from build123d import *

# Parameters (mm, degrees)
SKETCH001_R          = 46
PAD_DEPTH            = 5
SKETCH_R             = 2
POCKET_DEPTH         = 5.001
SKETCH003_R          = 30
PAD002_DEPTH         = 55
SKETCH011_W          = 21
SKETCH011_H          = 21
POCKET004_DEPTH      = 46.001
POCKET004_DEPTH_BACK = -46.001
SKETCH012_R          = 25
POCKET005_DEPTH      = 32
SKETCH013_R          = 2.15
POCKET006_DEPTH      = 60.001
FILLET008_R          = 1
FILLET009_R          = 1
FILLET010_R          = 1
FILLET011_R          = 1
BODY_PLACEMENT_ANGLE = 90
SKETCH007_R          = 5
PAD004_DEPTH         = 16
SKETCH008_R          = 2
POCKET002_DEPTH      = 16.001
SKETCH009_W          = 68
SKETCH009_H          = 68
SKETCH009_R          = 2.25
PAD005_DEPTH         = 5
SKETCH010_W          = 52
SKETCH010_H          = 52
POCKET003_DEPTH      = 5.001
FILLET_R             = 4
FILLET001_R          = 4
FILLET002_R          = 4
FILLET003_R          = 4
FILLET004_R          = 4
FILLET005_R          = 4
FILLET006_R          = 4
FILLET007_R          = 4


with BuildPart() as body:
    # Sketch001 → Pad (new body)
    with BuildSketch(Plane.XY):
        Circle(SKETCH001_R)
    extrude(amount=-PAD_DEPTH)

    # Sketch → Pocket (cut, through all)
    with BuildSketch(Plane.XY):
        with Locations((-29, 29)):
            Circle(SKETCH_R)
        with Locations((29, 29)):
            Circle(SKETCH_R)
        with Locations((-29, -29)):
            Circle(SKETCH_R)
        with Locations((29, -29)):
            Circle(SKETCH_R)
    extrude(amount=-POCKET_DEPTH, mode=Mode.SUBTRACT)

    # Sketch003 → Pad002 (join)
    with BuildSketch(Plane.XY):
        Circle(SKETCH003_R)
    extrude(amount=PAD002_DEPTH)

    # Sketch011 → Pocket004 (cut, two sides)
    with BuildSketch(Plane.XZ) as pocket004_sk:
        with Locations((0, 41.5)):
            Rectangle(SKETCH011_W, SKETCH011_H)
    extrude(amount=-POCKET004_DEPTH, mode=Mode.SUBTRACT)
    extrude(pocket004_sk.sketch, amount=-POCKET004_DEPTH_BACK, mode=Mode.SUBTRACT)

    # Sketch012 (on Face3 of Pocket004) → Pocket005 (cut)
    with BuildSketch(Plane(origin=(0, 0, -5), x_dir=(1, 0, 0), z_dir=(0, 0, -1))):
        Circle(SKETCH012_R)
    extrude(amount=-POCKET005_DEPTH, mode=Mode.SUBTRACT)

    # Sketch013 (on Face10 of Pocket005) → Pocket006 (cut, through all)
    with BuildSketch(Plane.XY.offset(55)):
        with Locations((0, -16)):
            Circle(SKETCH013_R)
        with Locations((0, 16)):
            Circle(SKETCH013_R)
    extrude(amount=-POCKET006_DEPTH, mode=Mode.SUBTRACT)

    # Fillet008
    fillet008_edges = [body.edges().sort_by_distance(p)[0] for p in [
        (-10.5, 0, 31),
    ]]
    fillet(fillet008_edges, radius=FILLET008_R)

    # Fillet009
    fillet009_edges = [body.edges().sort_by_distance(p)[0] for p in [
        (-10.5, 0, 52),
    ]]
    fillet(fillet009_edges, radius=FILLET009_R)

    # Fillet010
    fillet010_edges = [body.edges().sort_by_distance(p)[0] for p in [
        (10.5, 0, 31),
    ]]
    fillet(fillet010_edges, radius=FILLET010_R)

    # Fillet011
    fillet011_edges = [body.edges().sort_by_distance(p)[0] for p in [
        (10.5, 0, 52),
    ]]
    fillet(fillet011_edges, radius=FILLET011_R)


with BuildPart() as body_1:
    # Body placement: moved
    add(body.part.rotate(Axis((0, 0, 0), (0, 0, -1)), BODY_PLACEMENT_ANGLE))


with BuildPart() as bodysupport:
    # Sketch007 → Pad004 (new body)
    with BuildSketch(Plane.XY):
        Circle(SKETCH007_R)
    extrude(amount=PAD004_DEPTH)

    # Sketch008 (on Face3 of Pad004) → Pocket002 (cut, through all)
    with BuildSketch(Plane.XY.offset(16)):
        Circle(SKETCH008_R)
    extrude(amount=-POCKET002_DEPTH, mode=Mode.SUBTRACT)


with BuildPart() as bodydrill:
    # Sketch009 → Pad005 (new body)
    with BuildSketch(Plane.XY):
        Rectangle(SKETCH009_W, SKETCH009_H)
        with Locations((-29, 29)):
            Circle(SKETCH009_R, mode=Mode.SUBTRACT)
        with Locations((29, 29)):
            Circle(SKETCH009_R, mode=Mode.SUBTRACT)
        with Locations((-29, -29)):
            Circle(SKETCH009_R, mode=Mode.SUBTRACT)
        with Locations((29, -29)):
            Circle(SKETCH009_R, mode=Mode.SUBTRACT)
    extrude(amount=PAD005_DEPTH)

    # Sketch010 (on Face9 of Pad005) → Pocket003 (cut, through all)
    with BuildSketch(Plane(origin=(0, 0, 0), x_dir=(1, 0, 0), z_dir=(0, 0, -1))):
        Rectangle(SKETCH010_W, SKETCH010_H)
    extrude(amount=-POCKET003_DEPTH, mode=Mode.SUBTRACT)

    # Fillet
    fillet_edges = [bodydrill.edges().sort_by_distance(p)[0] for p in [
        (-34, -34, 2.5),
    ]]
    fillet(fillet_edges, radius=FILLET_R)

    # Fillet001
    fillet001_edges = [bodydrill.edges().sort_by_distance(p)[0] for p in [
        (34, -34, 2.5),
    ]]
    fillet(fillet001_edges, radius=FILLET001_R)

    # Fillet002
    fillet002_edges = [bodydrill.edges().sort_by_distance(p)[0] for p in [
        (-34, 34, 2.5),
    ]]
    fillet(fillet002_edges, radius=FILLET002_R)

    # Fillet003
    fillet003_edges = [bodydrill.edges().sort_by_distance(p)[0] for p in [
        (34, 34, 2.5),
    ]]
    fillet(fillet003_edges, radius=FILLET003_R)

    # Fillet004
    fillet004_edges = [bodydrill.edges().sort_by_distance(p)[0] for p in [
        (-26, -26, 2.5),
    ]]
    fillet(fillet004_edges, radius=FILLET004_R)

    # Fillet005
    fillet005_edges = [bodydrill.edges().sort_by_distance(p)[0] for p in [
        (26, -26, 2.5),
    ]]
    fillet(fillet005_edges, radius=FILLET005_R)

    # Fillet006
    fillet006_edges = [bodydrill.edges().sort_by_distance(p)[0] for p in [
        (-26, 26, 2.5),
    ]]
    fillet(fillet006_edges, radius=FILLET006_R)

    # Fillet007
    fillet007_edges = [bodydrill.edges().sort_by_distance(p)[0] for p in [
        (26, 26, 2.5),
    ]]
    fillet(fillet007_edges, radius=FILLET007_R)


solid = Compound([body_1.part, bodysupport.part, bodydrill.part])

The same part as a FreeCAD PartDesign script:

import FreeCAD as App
import Part
import Sketcher
from FreeCAD import Vector
Q = App.Units.Quantity


def edges_at(feature, points):
    """Names of the edges that pass closest to the given points."""
    edges = feature.Shape.Edges
    near = lambda p: min(range(len(edges)), key=lambda i: edges[i].distToShape(Part.Vertex(*p))[0])
    return sorted({f"Edge{near(p) + 1}" for p in points})


def add_polygon(sketch, points):
    """Adds a closed chain of lines whose ends are joined by coincident constraints."""
    first, n = sketch.GeometryCount, len(points)
    for a, b in zip(points, points[1:] + points[:1]):
        sketch.addGeometry(Part.LineSegment(App.Vector(*a, 0), App.Vector(*b, 0)), False)
    for i in range(n):
        sketch.addConstraint(Sketcher.Constraint("Coincident", first + i, 2, first + (i + 1) % n, 1))

doc = App.newDocument("Part")
params = doc.addObject("Spreadsheet::Sheet", "Params")
for row, (alias, value) in enumerate([
    ("sketch1_diameter", "92 mm"),
    ("pad1_length", "5 mm"),
    ("sketch2_diameter", "4 mm"),
    ("sketch3_diameter", "60 mm"),
    ("pad2_length", "55 mm"),
    ("sketch4_width", "21 mm"),
    ("sketch5_diameter", "50 mm"),
    ("pocket3_length", "32 mm"),
    ("sketch6_diameter", "4.3 mm"),
    ("fillet_radius", "1 mm"),
    ("fillet2_radius", "1 mm"),
    ("fillet3_radius", "1 mm"),
    ("fillet4_radius", "1 mm"),
    ("sketch7_diameter", "10 mm"),
    ("pad3_length", "16 mm"),
    ("sketch8_diameter", "4 mm"),
    ("sketch9_diameter", "4.5 mm"),
    ("sketch9_width", "68 mm"),
    ("pad4_length", "5 mm"),
    ("sketch10_width", "52 mm"),
    ("fillet5_radius", "4 mm"),
    ("fillet6_radius", "4 mm"),
    ("fillet7_radius", "4 mm"),
    ("fillet8_radius", "4 mm"),
    ("fillet9_radius", "4 mm"),
    ("fillet10_radius", "4 mm"),
    ("fillet11_radius", "4 mm"),
    ("fillet12_radius", "4 mm"),
], start=1):
    params.set(f"A{row}", alias)
    params.set(f"B{row}", "=" + value)
    params.setAlias(f"B{row}", alias)

body = doc.addObject("PartDesign::Body", "Body")

# Sketch on XY plane
sketch1 = doc.addObject("Sketcher::SketchObject", "Sketch")
body.addObject(sketch1)
sketch1.AttachmentSupport = (doc.XY_Plane, [""])
sketch1.MapMode = "FlatFace"
sketch1.addGeometry(Part.Circle(Vector(0, 0, 0), Vector(0, 0, 1), 46), False)
sketch1.addConstraint([
    Sketcher.Constraint("Coincident", 0, 3, -1, 1),
    Sketcher.Constraint("Diameter", 0, Q("92 mm")),
])
sketch1.setExpression("Constraints[1]", "Params.sketch1_diameter")
pad1 = doc.addObject("PartDesign::Pad", "Pad")
body.addObject(pad1)
pad1.Profile = sketch1
pad1.setExpression("Length", "Params.pad1_length")
pad1.Reversed = True

# Sketch on XY plane
sketch2 = doc.addObject("Sketcher::SketchObject", "Sketch001")
body.addObject(sketch2)
sketch2.AttachmentSupport = (doc.XY_Plane, [""])
sketch2.MapMode = "FlatFace"
sketch2.addGeometry([
    Part.Circle(Vector(-29, 29, 0), Vector(0, 0, 1), 2),
    Part.Circle(Vector(29, 29, 0), Vector(0, 0, 1), 2),
    Part.Circle(Vector(-29, -29, 0), Vector(0, 0, 1), 2),
    Part.Circle(Vector(29, -29, 0), Vector(0, 0, 1), 2),
], False)
sketch2.addConstraint([
    Sketcher.Constraint("Equal", 0, 1),
    Sketcher.Constraint("Equal", 1, 2),
    Sketcher.Constraint("Equal", 2, 3),
    Sketcher.Constraint("Symmetric", 1, 3, 2, 3, -1, 1),
    Sketcher.Constraint("Symmetric", 0, 3, 3, 3, -1, 1),
    Sketcher.Constraint("Symmetric", 0, 3, 1, 3, -2),
    Sketcher.Constraint("Diameter", 0, Q("4 mm")),
    Sketcher.Constraint("DistanceX", 0, 3, -1, 1, Q("29 mm")),
    Sketcher.Constraint("DistanceY", -1, 1, 0, 3, Q("29 mm")),
])
sketch2.setExpression("Constraints[6]", "Params.sketch2_diameter")
pocket1 = doc.addObject("PartDesign::Pocket", "Pocket")
body.addObject(pocket1)
pocket1.Profile = sketch2
pocket1.Type = "ThroughAll"

# Sketch on XY plane
sketch3 = doc.addObject("Sketcher::SketchObject", "Sketch002")
body.addObject(sketch3)
sketch3.AttachmentSupport = (doc.XY_Plane, [""])
sketch3.MapMode = "FlatFace"
sketch3.addGeometry(Part.Circle(Vector(0, 0, 0), Vector(0, 0, 1), 30), False)
sketch3.addConstraint([
    Sketcher.Constraint("Coincident", 0, 3, -1, 1),
    Sketcher.Constraint("Diameter", 0, Q("60 mm")),
])
sketch3.setExpression("Constraints[1]", "Params.sketch3_diameter")
pad2 = doc.addObject("PartDesign::Pad", "Pad001")
body.addObject(pad2)
pad2.Profile = sketch3
pad2.setExpression("Length", "Params.pad2_length")

# Sketch on XZ plane
sketch4 = doc.addObject("Sketcher::SketchObject", "Sketch003")
body.addObject(sketch4)
sketch4.AttachmentSupport = (doc.XZ_Plane, [""])
sketch4.MapMode = "FlatFace"
add_polygon(sketch4, [(-10, 52), (-10, 31), (10, 31), (10, 52)])  # lines 0-3
sketch4.addConstraint([
    Sketcher.Constraint("Vertical", 0),
    Sketcher.Constraint("Horizontal", 1),
    Sketcher.Constraint("Vertical", 2),
    Sketcher.Constraint("Horizontal", 3),
    Sketcher.Constraint("Equal", 3, 0),
    Sketcher.Constraint("DistanceX", 1, 1, 1, 2, Q("21 mm")),
    Sketcher.Constraint("DistanceY", -1, 1, 0, 2, Q("31 mm")),
    Sketcher.Constraint("DistanceX", 0, 2, -1, 1, Q("10.5 mm")),
])
sketch4.setExpression("Constraints[9]", "Params.sketch4_width")
pocket2 = doc.addObject("PartDesign::Pocket", "Pocket001")
body.addObject(pocket2)
pocket2.Profile = sketch4
pocket2.Type = "ThroughAll"
pocket2.Midplane = True

# Sketch on XY plane
sketch5 = doc.addObject("Sketcher::SketchObject", "Sketch004")
body.addObject(sketch5)
sketch5.AttachmentSupport = (doc.XY_Plane, [""])
sketch5.MapMode = "FlatFace"
sketch5.AttachmentOffset = App.Placement(Vector(0, 0, -5), App.Rotation())
sketch5.addGeometry(Part.Circle(Vector(0, 0, 0), Vector(0, 0, 1), 25), False)
sketch5.addConstraint([
    Sketcher.Constraint("Coincident", 0, 3, -1, 1),
    Sketcher.Constraint("Diameter", 0, Q("50 mm")),
])
sketch5.setExpression("Constraints[1]", "Params.sketch5_diameter")
pocket3 = doc.addObject("PartDesign::Pocket", "Pocket002")
body.addObject(pocket3)
pocket3.Profile = sketch5
pocket3.setExpression("Length", "Params.pocket3_length")
pocket3.Reversed = True

# Sketch on XY plane
sketch6 = doc.addObject("Sketcher::SketchObject", "Sketch005")
body.addObject(sketch6)
sketch6.AttachmentSupport = (doc.XY_Plane, [""])
sketch6.MapMode = "FlatFace"
sketch6.AttachmentOffset = App.Placement(Vector(0, 0, 55), App.Rotation())
sketch6.addGeometry([
    Part.Circle(Vector(0, -16, 0), Vector(0, 0, 1), 2.1),
    Part.Circle(Vector(0, 16, 0), Vector(0, 0, 1), 2.1),
], False)
sketch6.addConstraint([
    Sketcher.Constraint("Equal", 0, 1),
    Sketcher.Constraint("Symmetric", 0, 3, 1, 3, -1, 1),
    Sketcher.Constraint("PointOnObject", 0, 3, -2),
    Sketcher.Constraint("Diameter", 0, Q("4.3 mm")),
    Sketcher.Constraint("DistanceY", 0, 3, -1, 1, Q("16 mm")),
])
sketch6.setExpression("Constraints[3]", "Params.sketch6_diameter")
pocket4 = doc.addObject("PartDesign::Pocket", "Pocket003")
body.addObject(pocket4)
pocket4.Profile = sketch6
pocket4.Type = "ThroughAll"
doc.recompute()

fillet = doc.addObject("PartDesign::Fillet", "Fillet")
body.addObject(fillet)
fillet.Base = (pocket4, edges_at(pocket4, [(-10.5, 0, 31)]))
fillet.setExpression("Radius", "Params.fillet_radius")
doc.recompute()

fillet2 = doc.addObject("PartDesign::Fillet", "Fillet001")
body.addObject(fillet2)
fillet2.Base = (fillet, edges_at(fillet, [(-10.5, 0, 52)]))
fillet2.setExpression("Radius", "Params.fillet2_radius")
doc.recompute()

fillet3 = doc.addObject("PartDesign::Fillet", "Fillet002")
body.addObject(fillet3)
fillet3.Base = (fillet2, edges_at(fillet2, [(10.5, 0, 31)]))
fillet3.setExpression("Radius", "Params.fillet3_radius")
doc.recompute()

fillet4 = doc.addObject("PartDesign::Fillet", "Fillet003")
body.addObject(fillet4)
fillet4.Base = (fillet3, edges_at(fillet3, [(10.5, 0, 52)]))
fillet4.setExpression("Radius", "Params.fillet4_radius")
body2 = doc.addObject("PartDesign::Body", "Body001")
doc.recompute()

body.Placement = App.Placement(Vector(0, 0, 0), App.Rotation(Vector(0, 0, -1), 90))
boolean = doc.addObject("PartDesign::Boolean", "Boolean")
body2.addObject(boolean)
boolean.Type = "Fuse"
boolean.addObjects([body])
body3 = doc.addObject("PartDesign::Body", "Body002")

# Sketch on XY plane
sketch7 = doc.addObject("Sketcher::SketchObject", "Sketch006")
body3.addObject(sketch7)
sketch7.AttachmentSupport = (doc.getObject("XY_Plane002"), [""])
sketch7.MapMode = "FlatFace"
sketch7.addGeometry(Part.Circle(Vector(0, 0, 0), Vector(0, 0, 1), 5), False)
sketch7.addConstraint([
    Sketcher.Constraint("Coincident", 0, 3, -1, 1),
    Sketcher.Constraint("Diameter", 0, Q("10 mm")),
])
sketch7.setExpression("Constraints[1]", "Params.sketch7_diameter")
pad3 = doc.addObject("PartDesign::Pad", "Pad002")
body3.addObject(pad3)
pad3.Profile = sketch7
pad3.setExpression("Length", "Params.pad3_length")

# Sketch on XY plane
sketch8 = doc.addObject("Sketcher::SketchObject", "Sketch007")
body3.addObject(sketch8)
sketch8.AttachmentSupport = (doc.getObject("XY_Plane002"), [""])
sketch8.MapMode = "FlatFace"
sketch8.AttachmentOffset = App.Placement(Vector(0, 0, 16), App.Rotation())
sketch8.addGeometry(Part.Circle(Vector(0, 0, 0), Vector(0, 0, 1), 2), False)
sketch8.addConstraint([
    Sketcher.Constraint("Coincident", 0, 3, -1, 1),
    Sketcher.Constraint("Diameter", 0, Q("4 mm")),
])
sketch8.setExpression("Constraints[1]", "Params.sketch8_diameter")
pocket5 = doc.addObject("PartDesign::Pocket", "Pocket004")
body3.addObject(pocket5)
pocket5.Profile = sketch8
pocket5.Type = "ThroughAll"
body4 = doc.addObject("PartDesign::Body", "Body003")

# Sketch on XY plane
sketch9 = doc.addObject("Sketcher::SketchObject", "Sketch008")
body4.addObject(sketch9)
sketch9.AttachmentSupport = (doc.getObject("XY_Plane003"), [""])
sketch9.MapMode = "FlatFace"
add_polygon(sketch9, [(-34, 34), (-34, -34), (34, -34), (34, 34)])  # lines 0-3
sketch9.addGeometry(Part.Circle(Vector(-29, -29, 0), Vector(0, 0, 1), 2.2), False)  # 4
sketch9.addGeometry(Part.Circle(Vector(29, -29, 0), Vector(0, 0, 1), 2.2), False)  # 5
sketch9.addGeometry(Part.Circle(Vector(-29, 29, 0), Vector(0, 0, 1), 2.2), False)  # 6
sketch9.addGeometry(Part.Circle(Vector(29, 29, 0), Vector(0, 0, 1), 2.2), False)  # 7
sketch9.addConstraint([
    Sketcher.Constraint("Vertical", 0),
    Sketcher.Constraint("Horizontal", 1),
    Sketcher.Constraint("Vertical", 2),
    Sketcher.Constraint("Horizontal", 3),
    Sketcher.Constraint("Equal", 4, 5),
    Sketcher.Constraint("Equal", 5, 6),
    Sketcher.Constraint("Equal", 6, 7),
    Sketcher.Constraint("Symmetric", 5, 3, 6, 3, -1, 1),
    Sketcher.Constraint("Symmetric", 4, 3, 7, 3, -1, 1),
    Sketcher.Constraint("Symmetric", 0, 2, 2, 2, -1, 1),
    Sketcher.Constraint("Symmetric", 4, 3, 5, 3, -2),
    Sketcher.Constraint("Equal", 3, 0),
    Sketcher.Constraint("Diameter", 4, Q("4.5 mm")),
    Sketcher.Constraint("DistanceX", 1, 1, 1, 2, Q("68 mm")),
    Sketcher.Constraint("DistanceX", 4, 3, -1, 1, Q("29 mm")),
    Sketcher.Constraint("DistanceY", 4, 3, -1, 1, Q("29 mm")),
])
sketch9.setExpression("Constraints[16]", "Params.sketch9_diameter")
sketch9.setExpression("Constraints[17]", "Params.sketch9_width")
pad4 = doc.addObject("PartDesign::Pad", "Pad003")
body4.addObject(pad4)
pad4.Profile = sketch9
pad4.setExpression("Length", "Params.pad4_length")

# Sketch on XY plane
sketch10 = doc.addObject("Sketcher::SketchObject", "Sketch009")
body4.addObject(sketch10)
sketch10.AttachmentSupport = (doc.getObject("XY_Plane003"), [""])
sketch10.MapMode = "FlatFace"
add_polygon(sketch10, [(-26, -26), (-26, 26), (26, 26), (26, -26)])  # lines 0-3
sketch10.addConstraint([
    Sketcher.Constraint("Vertical", 0),
    Sketcher.Constraint("Horizontal", 1),
    Sketcher.Constraint("Vertical", 2),
    Sketcher.Constraint("Horizontal", 3),
    Sketcher.Constraint("Symmetric", 0, 2, 2, 2, -1, 1),
    Sketcher.Constraint("Equal", 3, 0),
    Sketcher.Constraint("DistanceX", 1, 1, 1, 2, Q("52 mm")),
])
sketch10.setExpression("Constraints[10]", "Params.sketch10_width")
pocket6 = doc.addObject("PartDesign::Pocket", "Pocket005")
body4.addObject(pocket6)
pocket6.Profile = sketch10
pocket6.Type = "ThroughAll"
pocket6.Reversed = True
doc.recompute()

fillet5 = doc.addObject("PartDesign::Fillet", "Fillet004")
body4.addObject(fillet5)
fillet5.Base = (pocket6, edges_at(pocket6, [(-34, -34, 2.5)]))
fillet5.setExpression("Radius", "Params.fillet5_radius")
doc.recompute()

fillet6 = doc.addObject("PartDesign::Fillet", "Fillet005")
body4.addObject(fillet6)
fillet6.Base = (fillet5, edges_at(fillet5, [(34, -34, 2.5)]))
fillet6.setExpression("Radius", "Params.fillet6_radius")
doc.recompute()

fillet7 = doc.addObject("PartDesign::Fillet", "Fillet006")
body4.addObject(fillet7)
fillet7.Base = (fillet6, edges_at(fillet6, [(-34, 34, 2.5)]))
fillet7.setExpression("Radius", "Params.fillet7_radius")
doc.recompute()

fillet8 = doc.addObject("PartDesign::Fillet", "Fillet007")
body4.addObject(fillet8)
fillet8.Base = (fillet7, edges_at(fillet7, [(34, 34, 2.5)]))
fillet8.setExpression("Radius", "Params.fillet8_radius")
doc.recompute()

fillet9 = doc.addObject("PartDesign::Fillet", "Fillet008")
body4.addObject(fillet9)
fillet9.Base = (fillet8, edges_at(fillet8, [(-26, -26, 2.5)]))
fillet9.setExpression("Radius", "Params.fillet9_radius")
doc.recompute()

fillet10 = doc.addObject("PartDesign::Fillet", "Fillet009")
body4.addObject(fillet10)
fillet10.Base = (fillet9, edges_at(fillet9, [(26, -26, 2.5)]))
fillet10.setExpression("Radius", "Params.fillet10_radius")
doc.recompute()

fillet11 = doc.addObject("PartDesign::Fillet", "Fillet010")
body4.addObject(fillet11)
fillet11.Base = (fillet10, edges_at(fillet10, [(-26, 26, 2.5)]))
fillet11.setExpression("Radius", "Params.fillet11_radius")
doc.recompute()

fillet12 = doc.addObject("PartDesign::Fillet", "Fillet011")
body4.addObject(fillet12)
fillet12.Base = (fillet11, edges_at(fillet11, [(26, 26, 2.5)]))
fillet12.setExpression("Radius", "Params.fillet12_radius")

doc.recompute()
